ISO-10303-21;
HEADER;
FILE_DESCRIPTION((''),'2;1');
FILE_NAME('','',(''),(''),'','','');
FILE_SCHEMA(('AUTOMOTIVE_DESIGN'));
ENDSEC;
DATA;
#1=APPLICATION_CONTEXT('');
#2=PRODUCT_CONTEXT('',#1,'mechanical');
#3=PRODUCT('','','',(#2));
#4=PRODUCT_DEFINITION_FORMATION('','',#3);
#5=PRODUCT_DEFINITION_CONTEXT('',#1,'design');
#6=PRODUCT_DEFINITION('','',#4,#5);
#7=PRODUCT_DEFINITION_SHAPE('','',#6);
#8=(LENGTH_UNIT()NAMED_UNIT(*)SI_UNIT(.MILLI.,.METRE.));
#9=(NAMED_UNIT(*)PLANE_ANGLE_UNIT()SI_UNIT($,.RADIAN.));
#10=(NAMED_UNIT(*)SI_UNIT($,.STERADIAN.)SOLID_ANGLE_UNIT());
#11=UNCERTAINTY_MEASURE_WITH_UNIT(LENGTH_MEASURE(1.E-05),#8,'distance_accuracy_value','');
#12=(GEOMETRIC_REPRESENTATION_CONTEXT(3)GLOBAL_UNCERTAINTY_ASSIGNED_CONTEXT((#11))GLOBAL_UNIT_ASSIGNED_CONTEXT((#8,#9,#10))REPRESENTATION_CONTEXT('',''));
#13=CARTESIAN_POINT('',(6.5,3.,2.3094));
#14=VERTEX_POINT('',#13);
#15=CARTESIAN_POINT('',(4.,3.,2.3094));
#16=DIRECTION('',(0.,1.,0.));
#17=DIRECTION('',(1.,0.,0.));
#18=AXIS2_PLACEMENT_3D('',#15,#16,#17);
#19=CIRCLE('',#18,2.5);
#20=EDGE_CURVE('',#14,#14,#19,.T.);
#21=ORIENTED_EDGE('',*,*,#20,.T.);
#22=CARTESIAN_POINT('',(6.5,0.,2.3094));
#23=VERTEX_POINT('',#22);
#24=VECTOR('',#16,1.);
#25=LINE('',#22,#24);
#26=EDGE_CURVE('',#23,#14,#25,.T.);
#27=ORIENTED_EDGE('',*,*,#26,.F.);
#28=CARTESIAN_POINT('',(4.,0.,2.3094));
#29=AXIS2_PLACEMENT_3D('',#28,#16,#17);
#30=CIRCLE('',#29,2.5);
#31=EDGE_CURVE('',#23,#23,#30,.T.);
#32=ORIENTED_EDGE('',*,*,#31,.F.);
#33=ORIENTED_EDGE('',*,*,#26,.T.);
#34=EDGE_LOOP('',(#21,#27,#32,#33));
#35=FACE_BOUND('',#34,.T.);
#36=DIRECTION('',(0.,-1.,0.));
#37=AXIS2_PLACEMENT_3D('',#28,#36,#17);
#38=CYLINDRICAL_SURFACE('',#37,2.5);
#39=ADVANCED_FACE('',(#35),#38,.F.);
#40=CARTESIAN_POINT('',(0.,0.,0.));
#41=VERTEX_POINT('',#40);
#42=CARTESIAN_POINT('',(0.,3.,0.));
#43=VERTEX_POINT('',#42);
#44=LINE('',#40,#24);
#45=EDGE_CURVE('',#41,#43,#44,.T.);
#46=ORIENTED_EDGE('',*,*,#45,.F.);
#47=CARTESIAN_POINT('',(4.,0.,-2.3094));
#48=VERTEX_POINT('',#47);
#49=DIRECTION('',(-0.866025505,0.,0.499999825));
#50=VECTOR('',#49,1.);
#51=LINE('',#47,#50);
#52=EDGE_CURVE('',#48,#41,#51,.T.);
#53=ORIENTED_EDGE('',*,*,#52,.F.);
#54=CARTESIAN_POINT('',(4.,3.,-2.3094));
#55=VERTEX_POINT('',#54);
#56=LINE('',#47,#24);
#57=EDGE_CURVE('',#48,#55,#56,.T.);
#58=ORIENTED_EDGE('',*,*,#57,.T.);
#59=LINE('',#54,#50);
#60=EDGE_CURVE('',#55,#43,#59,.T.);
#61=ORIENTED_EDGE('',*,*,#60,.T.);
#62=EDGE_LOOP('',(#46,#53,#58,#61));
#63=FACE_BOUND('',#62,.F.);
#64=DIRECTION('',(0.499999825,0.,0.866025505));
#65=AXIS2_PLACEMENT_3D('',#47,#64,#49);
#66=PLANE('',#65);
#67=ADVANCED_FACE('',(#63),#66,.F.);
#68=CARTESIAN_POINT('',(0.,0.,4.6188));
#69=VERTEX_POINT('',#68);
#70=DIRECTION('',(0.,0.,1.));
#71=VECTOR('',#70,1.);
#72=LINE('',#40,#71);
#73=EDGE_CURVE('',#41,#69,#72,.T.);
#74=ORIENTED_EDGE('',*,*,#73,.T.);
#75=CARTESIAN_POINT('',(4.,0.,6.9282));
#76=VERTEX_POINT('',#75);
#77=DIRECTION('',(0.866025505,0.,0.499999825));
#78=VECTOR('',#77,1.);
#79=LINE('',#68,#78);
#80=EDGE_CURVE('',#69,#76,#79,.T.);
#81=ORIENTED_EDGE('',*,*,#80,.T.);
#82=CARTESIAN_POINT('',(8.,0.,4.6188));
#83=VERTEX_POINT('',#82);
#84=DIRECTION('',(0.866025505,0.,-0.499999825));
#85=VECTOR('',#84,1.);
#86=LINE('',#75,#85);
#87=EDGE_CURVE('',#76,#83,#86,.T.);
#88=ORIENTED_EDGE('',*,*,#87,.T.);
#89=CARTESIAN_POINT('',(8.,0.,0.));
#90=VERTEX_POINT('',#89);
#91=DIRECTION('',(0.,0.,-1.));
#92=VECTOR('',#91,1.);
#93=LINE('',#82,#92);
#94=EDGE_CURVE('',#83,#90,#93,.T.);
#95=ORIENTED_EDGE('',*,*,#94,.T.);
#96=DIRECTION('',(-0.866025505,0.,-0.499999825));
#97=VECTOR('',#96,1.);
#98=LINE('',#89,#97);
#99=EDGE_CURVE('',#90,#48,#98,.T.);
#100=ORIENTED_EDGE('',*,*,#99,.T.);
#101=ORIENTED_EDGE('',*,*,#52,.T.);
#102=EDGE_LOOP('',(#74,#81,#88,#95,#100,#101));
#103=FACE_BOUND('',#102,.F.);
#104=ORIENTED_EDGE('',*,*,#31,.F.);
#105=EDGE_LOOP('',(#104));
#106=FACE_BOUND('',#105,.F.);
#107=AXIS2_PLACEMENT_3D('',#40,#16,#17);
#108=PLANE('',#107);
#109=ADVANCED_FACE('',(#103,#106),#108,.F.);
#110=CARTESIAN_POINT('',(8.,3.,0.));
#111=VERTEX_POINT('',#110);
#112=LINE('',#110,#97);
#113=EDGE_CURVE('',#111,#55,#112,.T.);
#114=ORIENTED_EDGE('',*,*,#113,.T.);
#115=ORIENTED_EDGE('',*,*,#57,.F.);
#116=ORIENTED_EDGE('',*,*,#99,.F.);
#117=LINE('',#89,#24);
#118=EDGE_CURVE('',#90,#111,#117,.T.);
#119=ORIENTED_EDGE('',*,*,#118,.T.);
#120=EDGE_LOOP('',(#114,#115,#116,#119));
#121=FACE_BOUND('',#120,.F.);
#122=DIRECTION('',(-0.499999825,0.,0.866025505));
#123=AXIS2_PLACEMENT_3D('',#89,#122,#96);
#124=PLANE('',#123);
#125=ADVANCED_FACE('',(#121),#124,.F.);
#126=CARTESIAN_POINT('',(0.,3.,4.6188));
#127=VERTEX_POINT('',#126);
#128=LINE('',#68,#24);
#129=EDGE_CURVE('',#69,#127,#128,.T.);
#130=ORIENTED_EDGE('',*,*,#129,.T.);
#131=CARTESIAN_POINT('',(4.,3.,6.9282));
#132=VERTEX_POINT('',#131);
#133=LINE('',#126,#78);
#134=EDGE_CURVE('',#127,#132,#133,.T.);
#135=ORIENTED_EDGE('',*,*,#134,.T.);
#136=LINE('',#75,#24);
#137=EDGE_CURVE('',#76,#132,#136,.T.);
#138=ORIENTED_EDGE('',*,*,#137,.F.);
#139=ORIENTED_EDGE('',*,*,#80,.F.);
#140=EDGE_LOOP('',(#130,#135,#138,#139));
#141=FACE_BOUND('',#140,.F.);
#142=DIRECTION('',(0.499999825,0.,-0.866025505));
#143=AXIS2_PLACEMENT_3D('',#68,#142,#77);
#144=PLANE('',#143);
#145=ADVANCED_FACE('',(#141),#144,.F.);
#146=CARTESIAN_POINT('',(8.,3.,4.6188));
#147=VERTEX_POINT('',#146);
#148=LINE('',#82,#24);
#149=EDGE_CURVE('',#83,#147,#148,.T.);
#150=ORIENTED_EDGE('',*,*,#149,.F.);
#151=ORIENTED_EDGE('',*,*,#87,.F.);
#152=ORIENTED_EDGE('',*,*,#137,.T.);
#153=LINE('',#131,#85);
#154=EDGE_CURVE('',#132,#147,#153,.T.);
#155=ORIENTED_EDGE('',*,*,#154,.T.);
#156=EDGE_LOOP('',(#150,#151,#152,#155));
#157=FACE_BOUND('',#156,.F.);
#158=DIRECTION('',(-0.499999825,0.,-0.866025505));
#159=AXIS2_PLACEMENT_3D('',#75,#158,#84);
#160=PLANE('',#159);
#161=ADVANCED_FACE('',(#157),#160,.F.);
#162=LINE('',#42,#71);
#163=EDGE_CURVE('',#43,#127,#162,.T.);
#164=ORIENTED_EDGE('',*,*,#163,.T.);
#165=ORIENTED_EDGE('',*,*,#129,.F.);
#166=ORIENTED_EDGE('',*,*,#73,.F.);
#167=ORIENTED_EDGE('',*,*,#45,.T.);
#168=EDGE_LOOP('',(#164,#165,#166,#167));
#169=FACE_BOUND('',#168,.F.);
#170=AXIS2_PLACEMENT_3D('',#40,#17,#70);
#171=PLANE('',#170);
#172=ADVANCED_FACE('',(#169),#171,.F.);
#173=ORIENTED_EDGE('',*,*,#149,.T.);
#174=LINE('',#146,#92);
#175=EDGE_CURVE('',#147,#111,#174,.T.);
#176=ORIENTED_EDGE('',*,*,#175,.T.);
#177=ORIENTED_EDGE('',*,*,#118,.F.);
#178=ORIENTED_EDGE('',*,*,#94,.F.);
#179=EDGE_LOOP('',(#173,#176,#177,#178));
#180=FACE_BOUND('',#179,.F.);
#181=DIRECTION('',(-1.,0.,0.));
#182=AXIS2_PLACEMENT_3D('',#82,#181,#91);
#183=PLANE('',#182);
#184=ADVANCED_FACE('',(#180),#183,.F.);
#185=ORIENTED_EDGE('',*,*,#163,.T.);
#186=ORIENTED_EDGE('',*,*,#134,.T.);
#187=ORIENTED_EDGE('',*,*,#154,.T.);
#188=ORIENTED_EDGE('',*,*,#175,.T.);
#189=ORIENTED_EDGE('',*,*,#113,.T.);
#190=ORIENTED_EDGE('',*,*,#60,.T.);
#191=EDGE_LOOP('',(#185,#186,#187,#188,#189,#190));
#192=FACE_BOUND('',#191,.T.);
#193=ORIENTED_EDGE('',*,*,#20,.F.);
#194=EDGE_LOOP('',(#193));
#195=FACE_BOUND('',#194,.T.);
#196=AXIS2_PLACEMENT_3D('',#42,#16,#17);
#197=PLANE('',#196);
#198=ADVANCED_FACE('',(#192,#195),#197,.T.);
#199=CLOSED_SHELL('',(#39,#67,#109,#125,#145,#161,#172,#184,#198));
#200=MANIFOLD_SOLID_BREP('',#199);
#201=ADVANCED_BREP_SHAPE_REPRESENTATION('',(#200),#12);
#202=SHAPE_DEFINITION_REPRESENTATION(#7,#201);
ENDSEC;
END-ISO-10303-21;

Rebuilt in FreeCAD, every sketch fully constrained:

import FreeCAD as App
import Part
import Sketcher
Q = App.Units.Quantity

doc = App.newDocument("Part")
body = doc.addObject("PartDesign::Body", "Body")

# Sketch on XZ plane
sketch1 = body.newObject("Sketcher::SketchObject", "Sketch")
sketch1.AttachmentSupport = (doc.getObject("XZ_Plane"), [""])
sketch1.MapMode = "FlatFace"
sketch1.addGeometry([
    Part.LineSegment(App.Vector(4, -2.3, 0), App.Vector(0, 0, 0)),  # 0
    Part.LineSegment(App.Vector(0, 0, 0), App.Vector(0, 4.6, 0)),  # 1
    Part.LineSegment(App.Vector(0, 4.6, 0), App.Vector(4, 6.9, 0)),  # 2
    Part.LineSegment(App.Vector(4, 6.9, 0), App.Vector(8, 4.6, 0)),  # 3
    Part.LineSegment(App.Vector(8, 4.6, 0), App.Vector(8, 0, 0)),  # 4
    Part.LineSegment(App.Vector(8, 0, 0), App.Vector(4, -2.3, 0)),  # 5
    Part.Circle(App.Vector(4, 2.3, 0), App.Vector(0, 0, 1), 2.5),  # 6
], False)
sketch1.addConstraint([
    Sketcher.Constraint("Coincident", 0, 2, 1, 1),
    Sketcher.Constraint("Coincident", 1, 2, 2, 1),
    Sketcher.Constraint("Coincident", 2, 2, 3, 1),
    Sketcher.Constraint("Coincident", 3, 2, 4, 1),
    Sketcher.Constraint("Coincident", 4, 2, 5, 1),
    Sketcher.Constraint("Coincident", 5, 2, 0, 1),
    Sketcher.Constraint("Vertical", 1),
    Sketcher.Constraint("Vertical", 4),
    Sketcher.Constraint("Coincident", 0, 2, -1, 1),
    Sketcher.Constraint("PointOnObject", 4, 2, -1),
    Sketcher.Constraint("Parallel", 0, 3),
    Sketcher.Constraint("Parallel", 2, 5),
    Sketcher.Constraint("Horizontal", 1, 2, 3, 2),
    Sketcher.Constraint("Vertical", 6, 3, 2, 2),
    Sketcher.Constraint("Vertical", 2, 2, 5, 2),
    Sketcher.Constraint("Diameter", 6, 5.0),
    Sketcher.Constraint("DistanceX", -1, 1, 3, 2, 8.0),
    Sketcher.Constraint("Angle", 0, Q("150 deg")),
    Sketcher.Constraint("DistanceY", 1, 1, 1, 2, 4.6188),
    Sketcher.Constraint("DistanceY", -1, 1, 6, 3, 2.3094),
])
pad1 = body.newObject("PartDesign::Pad", "Pad")
pad1.Profile = sketch1
pad1.Length = 3
pad1.Reversed = True

doc.recompute()
